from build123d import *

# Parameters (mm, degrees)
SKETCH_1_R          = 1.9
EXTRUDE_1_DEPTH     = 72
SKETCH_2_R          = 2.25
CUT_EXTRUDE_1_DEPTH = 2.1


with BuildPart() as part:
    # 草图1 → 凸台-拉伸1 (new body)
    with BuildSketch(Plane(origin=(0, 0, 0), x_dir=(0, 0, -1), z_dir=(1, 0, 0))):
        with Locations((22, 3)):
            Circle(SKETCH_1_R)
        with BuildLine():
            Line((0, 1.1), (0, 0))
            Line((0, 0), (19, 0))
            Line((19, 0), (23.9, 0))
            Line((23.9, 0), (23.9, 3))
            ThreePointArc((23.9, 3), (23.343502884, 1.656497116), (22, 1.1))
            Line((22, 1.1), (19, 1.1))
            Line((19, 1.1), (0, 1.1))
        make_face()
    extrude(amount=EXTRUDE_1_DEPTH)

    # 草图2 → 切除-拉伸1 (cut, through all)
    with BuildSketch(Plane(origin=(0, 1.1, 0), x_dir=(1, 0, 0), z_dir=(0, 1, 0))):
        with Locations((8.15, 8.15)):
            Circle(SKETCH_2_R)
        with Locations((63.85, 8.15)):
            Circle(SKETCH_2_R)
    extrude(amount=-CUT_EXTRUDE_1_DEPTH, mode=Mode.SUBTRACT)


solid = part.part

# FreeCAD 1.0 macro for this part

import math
import FreeCAD as App
import Part
import Sketcher
from FreeCAD import Vector

doc = App.newDocument("Part")
body = doc.addObject("PartDesign::Body", "Body")

sketch1 = body.newObject("Sketcher::SketchObject", "Sketch")
sketch1.AttachmentSupport = (doc.getObject("YZ_Plane"), [""])
sketch1.MapMode = "FlatFace"
sketch1.addGeometry([
    Part.ArcOfCircle(Part.Circle(Vector(3, -22, 0), Vector(0, 0, 1), 1.9), math.radians(-90), math.radians(180)),
    Part.LineSegment(Vector(1.1, -22, 0), Vector(1.1, 0, 0)),
    Part.LineSegment(Vector(1.1, 0, 0), Vector(0, 0, 0)),
    Part.LineSegment(Vector(0, 0, 0), Vector(0, -23.9, 0)),
    Part.LineSegment(Vector(0, -23.9, 0), Vector(3, -23.9, 0)),
], False)
sketch1.addConstraint([
    Sketcher.Constraint("Tangent", 0, 2, 1, 1),
    Sketcher.Constraint("Coincident", 1, 2, 2, 1),
    Sketcher.Constraint("Coincident", 2, 2, 3, 1),
    Sketcher.Constraint("Coincident", 3, 2, 4, 1),
    Sketcher.Constraint("Tangent", 4, 2, 0, 1),
    Sketcher.Constraint("Vertical", 1),
    Sketcher.Constraint("Horizontal", 2),
    Sketcher.Constraint("Vertical", 3),
    Sketcher.Constraint("Horizontal", 4),
    Sketcher.Constraint("Coincident", 2, 2, -1, 1),
    Sketcher.Constraint("Radius", 0, 1.9),
    Sketcher.Constraint("DistanceX", 4, 1, 4, 2, 3.0),
    Sketcher.Constraint("DistanceY", 1, 1, 1, 2, 22.0),
])
pad1 = body.newObject("PartDesign::Pad", "Pad")
pad1.Profile = sketch1
pad1.Length = 72

sketch2 = body.newObject("Sketcher::SketchObject", "Sketch001")
sketch2.AttachmentSupport = (doc.getObject("XZ_Plane"), [""])
sketch2.MapMode = "FlatFace"
sketch2.AttachmentOffset = App.Placement(Vector(0, 0, -1.1), App.Rotation())
sketch2.addGeometry([
    Part.Circle(Vector(8.15, -8.15, 0), Vector(0, 0, 1), 2.25),
    Part.Circle(Vector(63.85, -8.15, 0), Vector(0, 0, 1), 2.25),
], False)
sketch2.addConstraint([
    Sketcher.Constraint("Equal", 0, 1),
    Sketcher.Constraint("Horizontal", 0, 3, 1, 3),
    Sketcher.Constraint("Diameter", 0, 4.5),
    Sketcher.Constraint("DistanceX", 0, 3, 1, 3, 55.7),
    Sketcher.Constraint("DistanceX", -1, 1, 0, 3, 8.15),
    Sketcher.Constraint("DistanceY", 0, 3, -1, 1, 8.15),
])
pocket1 = body.newObject("PartDesign::Pocket", "Pocket")
pocket1.Profile = sketch2
pocket1.Type = "ThroughAll"
pocket1.Reversed = True

doc.recompute()
